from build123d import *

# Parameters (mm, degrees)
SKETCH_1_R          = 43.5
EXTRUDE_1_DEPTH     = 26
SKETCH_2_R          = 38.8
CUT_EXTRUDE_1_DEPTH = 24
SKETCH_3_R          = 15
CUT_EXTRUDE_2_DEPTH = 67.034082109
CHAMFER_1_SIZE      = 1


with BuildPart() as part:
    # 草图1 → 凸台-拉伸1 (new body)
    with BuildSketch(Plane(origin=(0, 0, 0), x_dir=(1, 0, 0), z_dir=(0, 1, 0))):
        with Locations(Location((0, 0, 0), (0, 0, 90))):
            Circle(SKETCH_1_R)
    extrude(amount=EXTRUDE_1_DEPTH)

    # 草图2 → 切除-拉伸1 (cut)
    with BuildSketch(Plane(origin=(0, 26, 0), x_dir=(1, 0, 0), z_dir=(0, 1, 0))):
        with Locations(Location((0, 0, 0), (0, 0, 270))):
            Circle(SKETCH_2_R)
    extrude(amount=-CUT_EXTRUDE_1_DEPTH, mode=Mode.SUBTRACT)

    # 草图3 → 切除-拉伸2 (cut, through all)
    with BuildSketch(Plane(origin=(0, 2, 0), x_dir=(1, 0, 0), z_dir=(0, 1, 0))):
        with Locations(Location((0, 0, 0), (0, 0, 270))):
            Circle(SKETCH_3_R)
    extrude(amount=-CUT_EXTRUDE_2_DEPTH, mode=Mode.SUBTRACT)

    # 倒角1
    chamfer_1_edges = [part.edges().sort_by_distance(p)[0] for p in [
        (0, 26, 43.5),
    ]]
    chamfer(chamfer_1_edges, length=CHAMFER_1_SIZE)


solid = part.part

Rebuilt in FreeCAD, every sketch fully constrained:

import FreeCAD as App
import Part
import Sketcher


def edges_at(feature, points):
    """Names of the edges that pass closest to the given points."""
    edges = feature.Shape.Edges
    near = lambda p: min(range(len(edges)), key=lambda i: edges[i].distToShape(Part.Vertex(*p))[0])
    return sorted({f"Edge{near(p) + 1}" for p in points})

doc = App.newDocument("Part")
params = doc.addObject("Spreadsheet::Sheet", "Params")
for row, (alias, value) in enumerate([
    ("sketch1_diameter", "87 mm"),
    ("pad1_length", "26 mm"),
    ("sketch2_diameter", "77.6 mm"),
    ("pocket1_length", "24 mm"),
    ("sketch3_diameter", "30 mm"),
    ("chamfer_size", "1 mm"),
], start=1):
    params.set(f"A{row}", alias)
    params.set(f"B{row}", "=" + value)
    params.setAlias(f"B{row}", alias)

body = doc.addObject("PartDesign::Body", "Body")

# Sketch on XZ plane
sketch1 = body.newObject("Sketcher::SketchObject", "Sketch")
sketch1.AttachmentSupport = (doc.getObject("XZ_Plane"), [""])
sketch1.MapMode = "FlatFace"
sketch1.addGeometry(Part.Circle(App.Vector(0, 0, 0), App.Vector(0, 0, 1), 44), False)
sketch1.addConstraint(Sketcher.Constraint("Coincident", 0, 3, -1, 1))
sketch1.addConstraint(Sketcher.Constraint("Diameter", 0, 87.0))
sketch1.setExpression("Constraints[1]", "Params.sketch1_diameter")
pad1 = body.newObject("PartDesign::Pad", "Pad")
pad1.Profile = sketch1
pad1.setExpression("Length", "Params.pad1_length")
pad1.Reversed = True

# Sketch on XZ plane
sketch2 = body.newObject("Sketcher::SketchObject", "Sketch001")
sketch2.AttachmentSupport = (doc.getObject("XZ_Plane"), [""])
sketch2.MapMode = "FlatFace"
sketch2.AttachmentOffset = App.Placement(App.Vector(0, 0, -26), App.Rotation())
sketch2.addGeometry(Part.Circle(App.Vector(0, 0, 0), App.Vector(0, 0, 1), 39), False)
sketch2.addConstraint(Sketcher.Constraint("Coincident", 0, 3, -1, 1))
sketch2.addConstraint(Sketcher.Constraint("Diameter", 0, 77.6))
sketch2.setExpression("Constraints[1]", "Params.sketch2_diameter")
pocket1 = body.newObject("PartDesign::Pocket", "Pocket")
pocket1.Profile = sketch2
pocket1.setExpression("Length", "Params.pocket1_length")
pocket1.Reversed = True

# Sketch on XZ plane
sketch3 = body.newObject("Sketcher::SketchObject", "Sketch002")
sketch3.AttachmentSupport = (doc.getObject("XZ_Plane"), [""])
sketch3.MapMode = "FlatFace"
sketch3.AttachmentOffset = App.Placement(App.Vector(0, 0, -2), App.Rotation())
sketch3.addGeometry(Part.Circle(App.Vector(0, 0, 0), App.Vector(0, 0, 1), 15), False)
sketch3.addConstraint(Sketcher.Constraint("Coincident", 0, 3, -1, 1))
sketch3.addConstraint(Sketcher.Constraint("Diameter", 0, 30.0))
sketch3.setExpression("Constraints[1]", "Params.sketch3_diameter")
pocket2 = body.newObject("PartDesign::Pocket", "Pocket001")
pocket2.Profile = sketch3
pocket2.Type = "ThroughAll"
pocket2.Reversed = True
doc.recompute()

chamfer = body.newObject("PartDesign::Chamfer", "Chamfer")
chamfer.Base = (pocket2, edges_at(pocket2, [(0, 26, 43.5)]))
chamfer.setExpression("Size", "Params.chamfer_size")

doc.recompute()
